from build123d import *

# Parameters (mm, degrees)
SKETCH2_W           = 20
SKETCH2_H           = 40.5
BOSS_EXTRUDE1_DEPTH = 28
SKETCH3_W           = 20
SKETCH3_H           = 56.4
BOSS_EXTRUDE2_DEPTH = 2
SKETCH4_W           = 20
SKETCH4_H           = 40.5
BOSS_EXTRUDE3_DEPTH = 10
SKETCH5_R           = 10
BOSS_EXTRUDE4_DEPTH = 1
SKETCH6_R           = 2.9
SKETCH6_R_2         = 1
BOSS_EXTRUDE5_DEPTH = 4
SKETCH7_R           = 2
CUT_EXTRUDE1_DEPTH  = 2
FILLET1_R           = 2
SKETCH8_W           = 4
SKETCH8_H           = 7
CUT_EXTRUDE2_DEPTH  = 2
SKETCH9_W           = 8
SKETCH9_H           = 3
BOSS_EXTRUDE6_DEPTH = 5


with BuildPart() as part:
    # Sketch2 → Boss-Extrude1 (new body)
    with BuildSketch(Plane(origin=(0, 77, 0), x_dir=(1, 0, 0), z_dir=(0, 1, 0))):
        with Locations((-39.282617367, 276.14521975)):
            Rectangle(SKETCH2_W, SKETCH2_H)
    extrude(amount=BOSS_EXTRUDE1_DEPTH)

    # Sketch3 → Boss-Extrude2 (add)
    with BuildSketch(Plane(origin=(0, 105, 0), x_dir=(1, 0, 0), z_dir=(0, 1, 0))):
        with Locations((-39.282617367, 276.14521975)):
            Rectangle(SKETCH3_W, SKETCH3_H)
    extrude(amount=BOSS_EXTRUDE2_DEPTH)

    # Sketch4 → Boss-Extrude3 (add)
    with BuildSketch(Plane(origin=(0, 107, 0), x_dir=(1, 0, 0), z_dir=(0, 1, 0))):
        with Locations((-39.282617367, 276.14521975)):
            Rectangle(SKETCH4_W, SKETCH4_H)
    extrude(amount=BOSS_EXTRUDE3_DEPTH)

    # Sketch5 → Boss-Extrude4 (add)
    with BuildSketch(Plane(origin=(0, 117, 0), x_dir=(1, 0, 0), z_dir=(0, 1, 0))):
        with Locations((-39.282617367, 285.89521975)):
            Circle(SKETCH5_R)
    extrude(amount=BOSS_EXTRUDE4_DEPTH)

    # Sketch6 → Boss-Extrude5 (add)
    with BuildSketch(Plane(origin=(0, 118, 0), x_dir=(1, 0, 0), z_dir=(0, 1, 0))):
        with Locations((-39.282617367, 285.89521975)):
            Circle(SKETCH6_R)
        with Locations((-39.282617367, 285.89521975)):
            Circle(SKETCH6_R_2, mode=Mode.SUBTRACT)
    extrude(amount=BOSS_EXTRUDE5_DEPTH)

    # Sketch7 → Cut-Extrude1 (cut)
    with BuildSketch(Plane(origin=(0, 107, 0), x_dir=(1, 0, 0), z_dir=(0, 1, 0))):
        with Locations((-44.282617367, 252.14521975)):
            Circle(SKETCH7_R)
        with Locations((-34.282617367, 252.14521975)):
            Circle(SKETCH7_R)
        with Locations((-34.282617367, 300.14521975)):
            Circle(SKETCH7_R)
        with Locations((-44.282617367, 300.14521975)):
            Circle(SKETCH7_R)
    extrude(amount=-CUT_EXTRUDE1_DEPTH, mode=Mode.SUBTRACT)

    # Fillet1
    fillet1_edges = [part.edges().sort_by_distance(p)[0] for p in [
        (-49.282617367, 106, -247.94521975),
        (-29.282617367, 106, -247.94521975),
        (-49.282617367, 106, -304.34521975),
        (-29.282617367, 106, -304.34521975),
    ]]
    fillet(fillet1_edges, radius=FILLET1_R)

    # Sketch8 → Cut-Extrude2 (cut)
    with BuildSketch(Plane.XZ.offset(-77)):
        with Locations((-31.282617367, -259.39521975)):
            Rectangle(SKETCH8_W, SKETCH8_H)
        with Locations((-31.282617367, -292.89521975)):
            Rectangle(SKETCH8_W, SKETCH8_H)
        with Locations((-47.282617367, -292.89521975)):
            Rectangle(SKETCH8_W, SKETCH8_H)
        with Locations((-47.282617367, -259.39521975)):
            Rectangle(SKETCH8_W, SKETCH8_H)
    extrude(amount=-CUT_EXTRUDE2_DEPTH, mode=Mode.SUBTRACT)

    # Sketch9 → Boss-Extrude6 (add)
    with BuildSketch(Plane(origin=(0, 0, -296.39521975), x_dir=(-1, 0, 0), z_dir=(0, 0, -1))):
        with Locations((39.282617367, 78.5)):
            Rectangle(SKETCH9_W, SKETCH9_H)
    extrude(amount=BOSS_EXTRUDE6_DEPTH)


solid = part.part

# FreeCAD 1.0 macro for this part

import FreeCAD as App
import Part
import Sketcher
Q = App.Units.Quantity


def edges_at(feature, points):
    """Names of the edges that pass closest to the given points."""
    edges = feature.Shape.Edges
    near = lambda p: min(range(len(edges)), key=lambda i: edges[i].distToShape(Part.Vertex(*p))[0])
    return sorted({f"Edge{near(p) + 1}" for p in points})

doc = App.newDocument("Part")
body = doc.addObject("PartDesign::Body", "Body")

sketch1 = doc.addObject("Sketcher::SketchObject", "Sketch")
body.addObject(sketch1)
sketch1.AttachmentSupport = (doc.XZ_Plane, [""])
sketch1.MapMode = "FlatFace"
sketch1.AttachmentOffset = App.Placement(App.Vector(0, 0, -77), App.Rotation())
sketch1.addGeometry(Part.LineSegment(App.Vector(-49, -296, 0), App.Vector(-49, -256, 0)), False)
sketch1.addGeometry(Part.LineSegment(App.Vector(-49, -256, 0), App.Vector(-29, -256, 0)), False)
sketch1.addGeometry(Part.LineSegment(App.Vector(-29, -256, 0), App.Vector(-29, -296, 0)), False)
sketch1.addGeometry(Part.LineSegment(App.Vector(-29, -296, 0), App.Vector(-49, -296, 0)), False)
sketch1.addConstraint(Sketcher.Constraint("Coincident", 0, 2, 1, 1))
sketch1.addConstraint(Sketcher.Constraint("Coincident", 1, 2, 2, 1))
sketch1.addConstraint(Sketcher.Constraint("Coincident", 2, 2, 3, 1))
sketch1.addConstraint(Sketcher.Constraint("Coincident", 3, 2, 0, 1))
sketch1.addConstraint(Sketcher.Constraint("Vertical", 0))
sketch1.addConstraint(Sketcher.Constraint("Horizontal", 1))
sketch1.addConstraint(Sketcher.Constraint("Vertical", 2))
sketch1.addConstraint(Sketcher.Constraint("Horizontal", 3))
sketch1.addConstraint(Sketcher.Constraint("DistanceX", 1, 1, 1, 2, Q("20 mm")))
sketch1.addConstraint(Sketcher.Constraint("DistanceY", 0, 1, 0, 2, Q("40.5 mm")))
sketch1.addConstraint(Sketcher.Constraint("DistanceY", 0, 2, -1, 1, Q("255.89522 mm")))
sketch1.addConstraint(Sketcher.Constraint("DistanceX", 0, 2, -1, 1, Q("49.282617 mm")))
pad1 = doc.addObject("PartDesign::Pad", "Pad")
body.addObject(pad1)
pad1.Profile = sketch1
pad1.Length = 28
pad1.Reversed = True

sketch2 = doc.addObject("Sketcher::SketchObject", "Sketch001")
body.addObject(sketch2)
sketch2.AttachmentSupport = (doc.XZ_Plane, [""])
sketch2.MapMode = "FlatFace"
sketch2.AttachmentOffset = App.Placement(App.Vector(0, 0, -105), App.Rotation())
sketch2.addGeometry(Part.LineSegment(App.Vector(-49, -304, 0), App.Vector(-49, -248, 0)), False)
sketch2.addGeometry(Part.LineSegment(App.Vector(-49, -248, 0), App.Vector(-29, -248, 0)), False)
sketch2.addGeometry(Part.LineSegment(App.Vector(-29, -248, 0), App.Vector(-29, -304, 0)), False)
sketch2.addGeometry(Part.LineSegment(App.Vector(-29, -304, 0), App.Vector(-49, -304, 0)), False)
sketch2.addConstraint(Sketcher.Constraint("Coincident", 0, 2, 1, 1))
sketch2.addConstraint(Sketcher.Constraint("Coincident", 1, 2, 2, 1))
sketch2.addConstraint(Sketcher.Constraint("Coincident", 2, 2, 3, 1))
sketch2.addConstraint(Sketcher.Constraint("Coincident", 3, 2, 0, 1))
sketch2.addConstraint(Sketcher.Constraint("Vertical", 0))
sketch2.addConstraint(Sketcher.Constraint("Horizontal", 1))
sketch2.addConstraint(Sketcher.Constraint("Vertical", 2))
sketch2.addConstraint(Sketcher.Constraint("Horizontal", 3))
sketch2.addConstraint(Sketcher.Constraint("DistanceX", 1, 1, 1, 2, Q("20 mm")))
sketch2.addConstraint(Sketcher.Constraint("DistanceY", 0, 1, 0, 2, Q("56.4 mm")))
sketch2.addConstraint(Sketcher.Constraint("DistanceY", 0, 2, -1, 1, Q("247.94522 mm")))
sketch2.addConstraint(Sketcher.Constraint("DistanceX", 0, 2, -1, 1, Q("49.282617 mm")))
pad2 = doc.addObject("PartDesign::Pad", "Pad001")
body.addObject(pad2)
pad2.Profile = sketch2
pad2.Length = 2
pad2.Reversed = True

sketch3 = doc.addObject("Sketcher::SketchObject", "Sketch002")
body.addObject(sketch3)
sketch3.AttachmentSupport = (doc.XZ_Plane, [""])
sketch3.MapMode = "FlatFace"
sketch3.AttachmentOffset = App.Placement(App.Vector(0, 0, -107), App.Rotation())
sketch3.addGeometry(Part.LineSegment(App.Vector(-49, -296, 0), App.Vector(-49, -256, 0)), False)
sketch3.addGeometry(Part.LineSegment(App.Vector(-49, -256, 0), App.Vector(-29, -256, 0)), False)
sketch3.addGeometry(Part.LineSegment(App.Vector(-29, -256, 0), App.Vector(-29, -296, 0)), False)
sketch3.addGeometry(Part.LineSegment(App.Vector(-29, -296, 0), App.Vector(-49, -296, 0)), False)
sketch3.addConstraint(Sketcher.Constraint("Coincident", 0, 2, 1, 1))
sketch3.addConstraint(Sketcher.Constraint("Coincident", 1, 2, 2, 1))
sketch3.addConstraint(Sketcher.Constraint("Coincident", 2, 2, 3, 1))
sketch3.addConstraint(Sketcher.Constraint("Coincident", 3, 2, 0, 1))
sketch3.addConstraint(Sketcher.Constraint("Vertical", 0))
sketch3.addConstraint(Sketcher.Constraint("Horizontal", 1))
sketch3.addConstraint(Sketcher.Constraint("Vertical", 2))
sketch3.addConstraint(Sketcher.Constraint("Horizontal", 3))
sketch3.addConstraint(Sketcher.Constraint("DistanceX", 1, 1, 1, 2, Q("20 mm")))
sketch3.addConstraint(Sketcher.Constraint("DistanceY", 0, 1, 0, 2, Q("40.5 mm")))
sketch3.addConstraint(Sketcher.Constraint("DistanceY", 0, 2, -1, 1, Q("255.89522 mm")))
sketch3.addConstraint(Sketcher.Constraint("DistanceX", 0, 2, -1, 1, Q("49.282617 mm")))
pad3 = doc.addObject("PartDesign::Pad", "Pad002")
body.addObject(pad3)
pad3.Profile = sketch3
pad3.Length = 10
pad3.Reversed = True

sketch4 = doc.addObject("Sketcher::SketchObject", "Sketch003")
body.addObject(sketch4)
sketch4.AttachmentSupport = (doc.XZ_Plane, [""])
sketch4.MapMode = "FlatFace"
sketch4.AttachmentOffset = App.Placement(App.Vector(0, 0, -117), App.Rotation())
sketch4.addGeometry(Part.Circle(App.Vector(-39, -286, 0), App.Vector(0, 0, 1), 10), False)
sketch4.addConstraint(Sketcher.Constraint("Diameter", 0, Q("20 mm")))
sketch4.addConstraint(Sketcher.Constraint("DistanceY", 0, 3, -1, 1, Q("285.89522 mm")))
sketch4.addConstraint(Sketcher.Constraint("DistanceX", 0, 3, -1, 1, Q("39.282617 mm")))
pad4 = doc.addObject("PartDesign::Pad", "Pad003")
body.addObject(pad4)
pad4.Profile = sketch4
pad4.Length = 1
pad4.Reversed = True

sketch5 = doc.addObject("Sketcher::SketchObject", "Sketch004")
body.addObject(sketch5)
sketch5.AttachmentSupport = (doc.XZ_Plane, [""])
sketch5.MapMode = "FlatFace"
sketch5.AttachmentOffset = App.Placement(App.Vector(0, 0, -118), App.Rotation())
sketch5.addGeometry(Part.Circle(App.Vector(-39.3, -285.9, 0), App.Vector(0, 0, 1), 2.9), False)
sketch5.addGeometry(Part.Circle(App.Vector(-39.3, -285.9, 0), App.Vector(0, 0, 1), 1), False)
sketch5.addConstraint(Sketcher.Constraint("Coincident", 1, 3, 0, 3))
sketch5.addConstraint(Sketcher.Constraint("Diameter", 1, Q("2 mm")))
sketch5.addConstraint(Sketcher.Constraint("Diameter", 0, Q("5.8 mm")))
sketch5.addConstraint(Sketcher.Constraint("DistanceY", 0, 3, -1, 1, Q("285.89522 mm")))
sketch5.addConstraint(Sketcher.Constraint("DistanceX", 0, 3, -1, 1, Q("39.282617 mm")))
pad5 = doc.addObject("PartDesign::Pad", "Pad004")
body.addObject(pad5)
pad5.Profile = sketch5
pad5.Length = 4
pad5.Reversed = True

sketch6 = doc.addObject("Sketcher::SketchObject", "Sketch005")
body.addObject(sketch6)
sketch6.AttachmentSupport = (doc.XZ_Plane, [""])
sketch6.MapMode = "FlatFace"
sketch6.AttachmentOffset = App.Placement(App.Vector(0, 0, -107), App.Rotation())
sketch6.addGeometry(Part.Circle(App.Vector(-44.3, -252.1, 0), App.Vector(0, 0, 1), 2), False)
sketch6.addGeometry(Part.Circle(App.Vector(-34.3, -252.1, 0), App.Vector(0, 0, 1), 2), False)
sketch6.addGeometry(Part.Circle(App.Vector(-34.3, -300.1, 0), App.Vector(0, 0, 1), 2), False)
sketch6.addGeometry(Part.Circle(App.Vector(-44.3, -300.1, 0), App.Vector(0, 0, 1), 2), False)
sketch6.addConstraint(Sketcher.Constraint("Equal", 0, 1))
sketch6.addConstraint(Sketcher.Constraint("Equal", 1, 2))
sketch6.addConstraint(Sketcher.Constraint("Equal", 2, 3))
sketch6.addConstraint(Sketcher.Constraint("Horizontal", 0, 3, 1, 3))
sketch6.addConstraint(Sketcher.Constraint("Horizontal", 2, 3, 3, 3))
sketch6.addConstraint(Sketcher.Constraint("Vertical", 1, 3, 2, 3))
sketch6.addConstraint(Sketcher.Constraint("Vertical", 0, 3, 3, 3))
sketch6.addConstraint(Sketcher.Constraint("Diameter", 0, Q("4 mm")))
sketch6.addConstraint(Sketcher.Constraint("DistanceX", 0, 3, 1, 3, Q("10 mm")))
sketch6.addConstraint(Sketcher.Constraint("DistanceY", 2, 3, 1, 3, Q("48 mm")))
sketch6.addConstraint(Sketcher.Constraint("DistanceY", 0, 3, -1, 1, Q("252.14522 mm")))
sketch6.addConstraint(Sketcher.Constraint("DistanceX", 0, 3, -1, 1, Q("44.282617 mm")))
pocket1 = doc.addObject("PartDesign::Pocket", "Pocket")
body.addObject(pocket1)
pocket1.Profile = sketch6
pocket1.Length = 2
pocket1.Reversed = True
doc.recompute()

fillet = doc.addObject("PartDesign::Fillet", "Fillet")
body.addObject(fillet)
fillet.Base = (pocket1, edges_at(pocket1, [
    (-49.283, 106, -247.945),
    (-29.283, 106, -247.945),
    (-49.283, 106, -304.345),
    (-29.283, 106, -304.345),
]))
fillet.Radius = 2

sketch7 = doc.addObject("Sketcher::SketchObject", "Sketch006")
body.addObject(sketch7)
sketch7.AttachmentSupport = (doc.XZ_Plane, [""])
sketch7.MapMode = "FlatFace"
sketch7.AttachmentOffset = App.Placement(App.Vector(0, 0, -77), App.Rotation())
sketch7.addGeometry(Part.LineSegment(App.Vector(-33.3, -255.9, 0), App.Vector(-33.3, -262.9, 0)), False)
sketch7.addGeometry(Part.LineSegment(App.Vector(-33.3, -262.9, 0), App.Vector(-29.3, -262.9, 0)), False)
sketch7.addGeometry(Part.LineSegment(App.Vector(-29.3, -262.9, 0), App.Vector(-29.3, -255.9, 0)), False)
sketch7.addGeometry(Part.LineSegment(App.Vector(-29.3, -255.9, 0), App.Vector(-33.3, -255.9, 0)), False)
sketch7.addGeometry(Part.LineSegment(App.Vector(-33.3, -289.4, 0), App.Vector(-33.3, -296.4, 0)), False)
sketch7.addGeometry(Part.LineSegment(App.Vector(-33.3, -296.4, 0), App.Vector(-29.3, -296.4, 0)), False)
sketch7.addGeometry(Part.LineSegment(App.Vector(-29.3, -296.4, 0), App.Vector(-29.3, -289.4, 0)), False)
sketch7.addGeometry(Part.LineSegment(App.Vector(-29.3, -289.4, 0), App.Vector(-33.3, -289.4, 0)), False)
sketch7.addGeometry(Part.LineSegment(App.Vector(-49.3, -289.4, 0), App.Vector(-49.3, -296.4, 0)), False)
sketch7.addGeometry(Part.LineSegment(App.Vector(-49.3, -296.4, 0), App.Vector(-45.3, -296.4, 0)), False)
sketch7.addGeometry(Part.LineSegment(App.Vector(-45.3, -296.4, 0), App.Vector(-45.3, -289.4, 0)), False)
sketch7.addGeometry(Part.LineSegment(App.Vector(-45.3, -289.4, 0), App.Vector(-49.3, -289.4, 0)), False)
sketch7.addGeometry(Part.LineSegment(App.Vector(-49.3, -255.9, 0), App.Vector(-49.3, -262.9, 0)), False)
sketch7.addGeometry(Part.LineSegment(App.Vector(-49.3, -262.9, 0), App.Vector(-45.3, -262.9, 0)), False)
sketch7.addGeometry(Part.LineSegment(App.Vector(-45.3, -262.9, 0), App.Vector(-45.3, -255.9, 0)), False)
sketch7.addGeometry(Part.LineSegment(App.Vector(-45.3, -255.9, 0), App.Vector(-49.3, -255.9, 0)), False)
sketch7.addConstraint(Sketcher.Constraint("Coincident", 0, 2, 1, 1))
sketch7.addConstraint(Sketcher.Constraint("Coincident", 1, 2, 2, 1))
sketch7.addConstraint(Sketcher.Constraint("Coincident", 2, 2, 3, 1))
sketch7.addConstraint(Sketcher.Constraint("Coincident", 3, 2, 0, 1))
sketch7.addConstraint(Sketcher.Constraint("Coincident", 4, 2, 5, 1))
sketch7.addConstraint(Sketcher.Constraint("Coincident", 5, 2, 6, 1))
sketch7.addConstraint(Sketcher.Constraint("Coincident", 6, 2, 7, 1))
sketch7.addConstraint(Sketcher.Constraint("Coincident", 7, 2, 4, 1))
sketch7.addConstraint(Sketcher.Constraint("Coincident", 8, 2, 9, 1))
sketch7.addConstraint(Sketcher.Constraint("Coincident", 9, 2, 10, 1))
sketch7.addConstraint(Sketcher.Constraint("Coincident", 10, 2, 11, 1))
sketch7.addConstraint(Sketcher.Constraint("Coincident", 11, 2, 8, 1))
sketch7.addConstraint(Sketcher.Constraint("Coincident", 12, 2, 13, 1))
sketch7.addConstraint(Sketcher.Constraint("Coincident", 13, 2, 14, 1))
sketch7.addConstraint(Sketcher.Constraint("Coincident", 14, 2, 15, 1))
sketch7.addConstraint(Sketcher.Constraint("Coincident", 15, 2, 12, 1))
sketch7.addConstraint(Sketcher.Constraint("Vertical", 0))
sketch7.addConstraint(Sketcher.Constraint("Horizontal", 1))
sketch7.addConstraint(Sketcher.Constraint("Vertical", 2))
sketch7.addConstraint(Sketcher.Constraint("Horizontal", 3))
sketch7.addConstraint(Sketcher.Constraint("Vertical", 4))
sketch7.addConstraint(Sketcher.Constraint("Horizontal", 5))
sketch7.addConstraint(Sketcher.Constraint("Vertical", 6))
sketch7.addConstraint(Sketcher.Constraint("Horizontal", 7))
sketch7.addConstraint(Sketcher.Constraint("Vertical", 8))
sketch7.addConstraint(Sketcher.Constraint("Horizontal", 9))
sketch7.addConstraint(Sketcher.Constraint("Vertical", 10))
sketch7.addConstraint(Sketcher.Constraint("Horizontal", 11))
sketch7.addConstraint(Sketcher.Constraint("Vertical", 12))
sketch7.addConstraint(Sketcher.Constraint("Horizontal", 13))
sketch7.addConstraint(Sketcher.Constraint("Vertical", 14))
sketch7.addConstraint(Sketcher.Constraint("Horizontal", 15))
sketch7.addConstraint(Sketcher.Constraint("Horizontal", 5, 2, 8, 2))
sketch7.addConstraint(Sketcher.Constraint("Horizontal", 7, 2, 10, 2))
sketch7.addConstraint(Sketcher.Constraint("Horizontal", 1, 2, 12, 2))
sketch7.addConstraint(Sketcher.Constraint("Horizontal", 3, 2, 14, 2))
sketch7.addConstraint(Sketcher.Constraint("Vertical", 3, 2, 4, 2))
sketch7.addConstraint(Sketcher.Constraint("Vertical", 2, 2, 5, 2))
sketch7.addConstraint(Sketcher.Constraint("Vertical", 11, 2, 12, 2))
sketch7.addConstraint(Sketcher.Constraint("Vertical", 10, 2, 13, 2))
sketch7.addConstraint(Sketcher.Constraint("Equal", 7, 9))
sketch7.addConstraint(Sketcher.Constraint("Equal", 2, 4))
sketch7.addConstraint(Sketcher.Constraint("DistanceX", 1, 1, 1, 2, Q("4 mm")))
sketch7.addConstraint(Sketcher.Constraint("DistanceY", 0, 2, 0, 1, Q("7 mm")))
sketch7.addConstraint(Sketcher.Constraint("DistanceX", 8, 2, 4, 2, Q("16 mm")))
sketch7.addConstraint(Sketcher.Constraint("DistanceY", 4, 2, 0, 2, Q("33.5 mm")))
sketch7.addConstraint(Sketcher.Constraint("DistanceY", 0, 2, -1, 1, Q("262.89522 mm")))
sketch7.addConstraint(Sketcher.Constraint("DistanceX", 0, 2, -1, 1, Q("33.282617 mm")))
pocket2 = doc.addObject("PartDesign::Pocket", "Pocket001")
body.addObject(pocket2)
pocket2.Profile = sketch7
pocket2.Length = 2

sketch8 = doc.addObject("Sketcher::SketchObject", "Sketch007")
body.addObject(sketch8)
sketch8.AttachmentSupport = (doc.XY_Plane, [""])
sketch8.MapMode = "FlatFace"
sketch8.AttachmentOffset = App.Placement(App.Vector(0, 0, -296.39522), App.Rotation())
sketch8.addGeometry(Part.LineSegment(App.Vector(-35.3, 80, 0), App.Vector(-35.3, 77, 0)), False)
sketch8.addGeometry(Part.LineSegment(App.Vector(-35.3, 77, 0), App.Vector(-43.3, 77, 0)), False)
sketch8.addGeometry(Part.LineSegment(App.Vector(-43.3, 77, 0), App.Vector(-43.3, 80, 0)), False)
sketch8.addGeometry(Part.LineSegment(App.Vector(-43.3, 80, 0), App.Vector(-35.3, 80, 0)), False)
sketch8.addConstraint(Sketcher.Constraint("Coincident", 0, 2, 1, 1))
sketch8.addConstraint(Sketcher.Constraint("Coincident", 1, 2, 2, 1))
sketch8.addConstraint(Sketcher.Constraint("Coincident", 2, 2, 3, 1))
sketch8.addConstraint(Sketcher.Constraint("Coincident", 3, 2, 0, 1))
sketch8.addConstraint(Sketcher.Constraint("Vertical", 0))
sketch8.addConstraint(Sketcher.Constraint("Horizontal", 1))
sketch8.addConstraint(Sketcher.Constraint("Vertical", 2))
sketch8.addConstraint(Sketcher.Constraint("Horizontal", 3))
sketch8.addConstraint(Sketcher.Constraint("DistanceX", 1, 2, 1, 1, Q("8 mm")))
sketch8.addConstraint(Sketcher.Constraint("DistanceY", 0, 2, 0, 1, Q("3 mm")))
sketch8.addConstraint(Sketcher.Constraint("DistanceY", -1, 1, 0, 2, Q("77 mm")))
sketch8.addConstraint(Sketcher.Constraint("DistanceX", 0, 2, -1, 1, Q("35.282617 mm")))
pad6 = doc.addObject("PartDesign::Pad", "Pad005")
body.addObject(pad6)
pad6.Profile = sketch8
pad6.Length = 5
pad6.Reversed = True

doc.recompute()
